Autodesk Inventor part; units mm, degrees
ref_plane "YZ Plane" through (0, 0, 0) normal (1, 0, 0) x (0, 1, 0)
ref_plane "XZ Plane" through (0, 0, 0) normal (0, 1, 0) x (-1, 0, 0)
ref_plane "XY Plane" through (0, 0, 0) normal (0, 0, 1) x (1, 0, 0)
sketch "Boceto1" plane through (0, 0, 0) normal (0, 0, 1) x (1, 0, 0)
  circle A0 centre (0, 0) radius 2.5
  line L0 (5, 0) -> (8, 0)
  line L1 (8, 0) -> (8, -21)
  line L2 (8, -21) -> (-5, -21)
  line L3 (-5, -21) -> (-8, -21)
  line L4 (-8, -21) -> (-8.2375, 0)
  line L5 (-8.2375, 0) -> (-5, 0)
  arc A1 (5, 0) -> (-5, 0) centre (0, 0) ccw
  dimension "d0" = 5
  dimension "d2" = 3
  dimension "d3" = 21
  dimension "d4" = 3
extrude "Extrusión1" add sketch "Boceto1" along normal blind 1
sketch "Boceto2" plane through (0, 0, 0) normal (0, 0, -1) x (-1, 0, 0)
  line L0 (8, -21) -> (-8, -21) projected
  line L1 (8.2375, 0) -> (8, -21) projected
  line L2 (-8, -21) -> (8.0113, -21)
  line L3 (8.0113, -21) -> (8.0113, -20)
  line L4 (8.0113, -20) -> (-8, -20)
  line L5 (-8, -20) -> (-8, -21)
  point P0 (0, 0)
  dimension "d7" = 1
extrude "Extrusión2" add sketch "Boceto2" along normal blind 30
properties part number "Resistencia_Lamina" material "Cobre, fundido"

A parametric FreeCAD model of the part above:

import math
import FreeCAD as App
import Part
import Sketcher
from FreeCAD import Vector


def add_polygon(sketch, points):
    """Adds a closed chain of lines whose ends are joined by coincident constraints."""
    first, n = sketch.GeometryCount, len(points)
    for a, b in zip(points, points[1:] + points[:1]):
        sketch.addGeometry(Part.LineSegment(App.Vector(*a, 0), App.Vector(*b, 0)), False)
    for i in range(n):
        sketch.addConstraint(Sketcher.Constraint("Coincident", first + i, 2, first + (i + 1) % n, 1))

doc = App.newDocument("Part")
body = doc.addObject("PartDesign::Body", "Body")

# Sketch on XY plane
sketch1 = doc.addObject("Sketcher::SketchObject", "Sketch")
body.addObject(sketch1)
sketch1.AttachmentSupport = (doc.XY_Plane, [""])
sketch1.MapMode = "FlatFace"
sketch1.addGeometry(Part.LineSegment(Vector(8, 0, 0), Vector(5, 0, 0)), False)
sketch1.addGeometry(Part.ArcOfCircle(Part.Circle(Vector(0, 0, 0), Vector(0, 0, 1), 5), math.radians(0), math.radians(180)), False)
sketch1.addGeometry(Part.LineSegment(Vector(-5, 0, 0), Vector(-8.2, 0, 0)), False)
sketch1.addGeometry(Part.LineSegment(Vector(-8.2, 0, 0), Vector(-8, -21, 0)), False)
sketch1.addGeometry(Part.LineSegment(Vector(-8, -21, 0), Vector(8, -21, 0)), False)
sketch1.addGeometry(Part.LineSegment(Vector(8, -21, 0), Vector(8, 0, 0)), False)
sketch1.addGeometry(Part.Circle(Vector(0, 0, 0), Vector(0, 0, 1), 2.5), False)
sketch1.addConstraint(Sketcher.Constraint("Coincident", 0, 2, 1, 1))
sketch1.addConstraint(Sketcher.Constraint("Coincident", 1, 2, 2, 1))
sketch1.addConstraint(Sketcher.Constraint("Coincident", 2, 2, 3, 1))
sketch1.addConstraint(Sketcher.Constraint("Coincident", 3, 2, 4, 1))
sketch1.addConstraint(Sketcher.Constraint("Coincident", 4, 2, 5, 1))
sketch1.addConstraint(Sketcher.Constraint("Coincident", 5, 2, 0, 1))
sketch1.addConstraint(Sketcher.Constraint("Horizontal", 0))
sketch1.addConstraint(Sketcher.Constraint("Horizontal", 2))
sketch1.addConstraint(Sketcher.Constraint("Horizontal", 4))
sketch1.addConstraint(Sketcher.Constraint("Vertical", 5))
sketch1.addConstraint(Sketcher.Constraint("Coincident", 1, 3, -1, 1))
sketch1.addConstraint(Sketcher.Constraint("Coincident", 6, 3, -1, 1))
sketch1.addConstraint(Sketcher.Constraint("PointOnObject", 0, 2, -1))
sketch1.addConstraint(Sketcher.Constraint("PointOnObject", 1, 2, -1))
sketch1.addConstraint(Sketcher.Constraint("Diameter", 6, 5.0))
sketch1.addConstraint(Sketcher.Constraint("Radius", 1, 5.0))
sketch1.addConstraint(Sketcher.Constraint("DistanceX", 0, 2, 0, 1, 3.0))
sketch1.addConstraint(Sketcher.Constraint("DistanceY", 5, 1, 5, 2, 21.0))
sketch1.addConstraint(Sketcher.Constraint("DistanceX", 3, 2, 1, 2, 3.0))
sketch1.addConstraint(Sketcher.Constraint("DistanceX", 2, 2, 2, 1, 3.2375))
pad1 = doc.addObject("PartDesign::Pad", "Pad")
body.addObject(pad1)
pad1.Profile = sketch1
pad1.Length = 1

# Sketch on XY plane
sketch2 = doc.addObject("Sketcher::SketchObject", "Sketch001")
body.addObject(sketch2)
sketch2.AttachmentSupport = (doc.XY_Plane, [""])
sketch2.MapMode = "FlatFace"
add_polygon(sketch2, [(8, -21), (-8, -21), (-8, -20), (8, -20)])  # lines 0-3
sketch2.addConstraint(Sketcher.Constraint("Horizontal", 0))
sketch2.addConstraint(Sketcher.Constraint("Vertical", 1))
sketch2.addConstraint(Sketcher.Constraint("Horizontal", 2))
sketch2.addConstraint(Sketcher.Constraint("Vertical", 3))
sketch2.addConstraint(Sketcher.Constraint("DistanceY", 1, 1, 1, 2, 1.0))
sketch2.addConstraint(Sketcher.Constraint("DistanceY", 0, 2, -1, 1, 21.0))
sketch2.addConstraint(Sketcher.Constraint("DistanceX", -1, 1, 2, 2, 8.0))
sketch2.addConstraint(Sketcher.Constraint("DistanceX", 0, 2, 0, 1, 16.0113))
pad2 = doc.addObject("PartDesign::Pad", "Pad001")
body.addObject(pad2)
pad2.Profile = sketch2
pad2.Length = 30
pad2.Reversed = True

doc.recompute()
